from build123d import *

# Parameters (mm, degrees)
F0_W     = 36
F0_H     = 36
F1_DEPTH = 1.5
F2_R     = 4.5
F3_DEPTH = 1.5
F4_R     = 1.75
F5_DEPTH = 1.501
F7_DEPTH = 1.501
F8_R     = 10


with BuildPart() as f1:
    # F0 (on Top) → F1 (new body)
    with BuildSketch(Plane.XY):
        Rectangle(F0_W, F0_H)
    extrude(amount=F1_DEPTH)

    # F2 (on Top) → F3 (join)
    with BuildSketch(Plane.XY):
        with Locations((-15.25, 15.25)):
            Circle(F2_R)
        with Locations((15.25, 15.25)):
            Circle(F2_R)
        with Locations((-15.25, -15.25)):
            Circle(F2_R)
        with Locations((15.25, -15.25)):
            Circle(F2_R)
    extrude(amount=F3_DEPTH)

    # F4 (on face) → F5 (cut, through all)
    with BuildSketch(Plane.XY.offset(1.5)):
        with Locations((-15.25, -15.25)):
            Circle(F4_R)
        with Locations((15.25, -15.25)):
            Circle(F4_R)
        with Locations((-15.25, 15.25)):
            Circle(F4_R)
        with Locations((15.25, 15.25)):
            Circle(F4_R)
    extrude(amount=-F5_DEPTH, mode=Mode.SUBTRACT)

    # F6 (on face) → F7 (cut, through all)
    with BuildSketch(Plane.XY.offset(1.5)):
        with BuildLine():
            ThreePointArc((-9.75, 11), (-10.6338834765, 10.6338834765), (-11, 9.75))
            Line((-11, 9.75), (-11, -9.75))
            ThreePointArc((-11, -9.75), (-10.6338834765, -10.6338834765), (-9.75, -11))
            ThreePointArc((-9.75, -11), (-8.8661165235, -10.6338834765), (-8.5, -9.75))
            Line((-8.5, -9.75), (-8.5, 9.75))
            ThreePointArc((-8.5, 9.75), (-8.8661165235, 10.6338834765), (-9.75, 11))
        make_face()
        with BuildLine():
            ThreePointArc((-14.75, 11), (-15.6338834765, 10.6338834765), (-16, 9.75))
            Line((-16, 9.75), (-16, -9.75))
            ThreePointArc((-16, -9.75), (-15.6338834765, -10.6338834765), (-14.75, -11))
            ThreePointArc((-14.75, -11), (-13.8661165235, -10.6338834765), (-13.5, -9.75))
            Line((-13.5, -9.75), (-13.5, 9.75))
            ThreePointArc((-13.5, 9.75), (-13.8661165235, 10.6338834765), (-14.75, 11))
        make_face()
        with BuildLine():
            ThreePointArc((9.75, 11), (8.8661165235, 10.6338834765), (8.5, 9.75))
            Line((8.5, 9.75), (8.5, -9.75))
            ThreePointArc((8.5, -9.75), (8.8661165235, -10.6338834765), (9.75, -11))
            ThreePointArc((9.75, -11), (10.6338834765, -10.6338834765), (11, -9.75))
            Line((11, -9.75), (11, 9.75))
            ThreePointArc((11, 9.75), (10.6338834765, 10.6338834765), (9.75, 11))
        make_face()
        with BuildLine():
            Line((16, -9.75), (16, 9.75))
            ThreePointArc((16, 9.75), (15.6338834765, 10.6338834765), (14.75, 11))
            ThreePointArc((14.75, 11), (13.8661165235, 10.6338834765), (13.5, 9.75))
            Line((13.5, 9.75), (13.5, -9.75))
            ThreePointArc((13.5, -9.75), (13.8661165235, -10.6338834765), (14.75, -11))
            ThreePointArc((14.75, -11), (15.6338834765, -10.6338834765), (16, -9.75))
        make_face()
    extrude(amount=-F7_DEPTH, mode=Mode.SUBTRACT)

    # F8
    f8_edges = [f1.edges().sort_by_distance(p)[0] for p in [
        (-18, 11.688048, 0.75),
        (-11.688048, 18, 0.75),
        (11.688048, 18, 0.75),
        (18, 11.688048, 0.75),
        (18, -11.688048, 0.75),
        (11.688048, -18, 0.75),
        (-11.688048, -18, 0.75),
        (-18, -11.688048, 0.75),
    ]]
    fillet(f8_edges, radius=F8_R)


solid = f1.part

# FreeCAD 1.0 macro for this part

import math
import FreeCAD as App
import Part
import Sketcher

V = App.Vector


def edges_at(feature, points):
    """Names of the edges that pass closest to the given points."""
    edges = feature.Shape.Edges
    near = lambda p: min(range(len(edges)), key=lambda i: edges[i].distToShape(Part.Vertex(*p))[0])
    return sorted({f"Edge{near(p) + 1}" for p in points})

doc = App.newDocument("Part")
body = doc.addObject("PartDesign::Body", "Body")

# Sketch on XY plane
sketch1 = body.newObject("Sketcher::SketchObject", "Sketch")
sketch1.AttachmentSupport = (doc.getObject("XY_Plane"), [""])
sketch1.MapMode = "FlatFace"
sketch1.addGeometry([
    Part.LineSegment(V(-18, 18, 0), V(-18, -18, 0)),
    Part.LineSegment(V(-18, -18, 0), V(18, -18, 0)),
    Part.LineSegment(V(18, -18, 0), V(18, 18, 0)),
    Part.LineSegment(V(18, 18, 0), V(-18, 18, 0)),
], False)
sketch1.addConstraint([
    Sketcher.Constraint("Coincident", 0, 2, 1, 1),
    Sketcher.Constraint("Coincident", 1, 2, 2, 1),
    Sketcher.Constraint("Coincident", 2, 2, 3, 1),
    Sketcher.Constraint("Coincident", 3, 2, 0, 1),
    Sketcher.Constraint("Vertical", 0),
    Sketcher.Constraint("Horizontal", 1),
    Sketcher.Constraint("Vertical", 2),
    Sketcher.Constraint("Horizontal", 3),
    Sketcher.Constraint("Symmetric", 0, 2, 2, 2, -1, 1),
    Sketcher.Constraint("Equal", 3, 0),
    Sketcher.Constraint("DistanceX", 1, 1, 1, 2, 36.0),
])
pad1 = body.newObject("PartDesign::Pad", "Pad")
pad1.Profile = sketch1
pad1.Length = 1.5

# Sketch on XY plane
sketch2 = body.newObject("Sketcher::SketchObject", "Sketch001")
sketch2.AttachmentSupport = (doc.getObject("XY_Plane"), [""])
sketch2.MapMode = "FlatFace"
sketch2.addGeometry([
    Part.Circle(V(-15.2, 15.2, 0), V(0, 0, 1), 4.5),
    Part.Circle(V(15.2, 15.2, 0), V(0, 0, 1), 4.5),
    Part.Circle(V(-15.2, -15.2, 0), V(0, 0, 1), 4.5),
    Part.Circle(V(15.2, -15.2, 0), V(0, 0, 1), 4.5),
], False)
sketch2.addConstraint([
    Sketcher.Constraint("Equal", 0, 1),
    Sketcher.Constraint("Equal", 1, 2),
    Sketcher.Constraint("Equal", 2, 3),
    Sketcher.Constraint("Symmetric", 1, 3, 2, 3, -1, 1),
    Sketcher.Constraint("Symmetric", 0, 3, 3, 3, -1, 1),
    Sketcher.Constraint("Symmetric", 0, 3, 1, 3, -2),
    Sketcher.Constraint("Diameter", 0, 9.0),
    Sketcher.Constraint("DistanceX", 0, 3, 1, 3, 30.5),
    Sketcher.Constraint("DistanceY", 2, 3, 0, 3, 30.5),
])
pad2 = body.newObject("PartDesign::Pad", "Pad001")
pad2.Profile = sketch2
pad2.Length = 1.5

# Sketch on XY plane
sketch3 = body.newObject("Sketcher::SketchObject", "Sketch002")
sketch3.AttachmentSupport = (doc.getObject("XY_Plane"), [""])
sketch3.MapMode = "FlatFace"
sketch3.AttachmentOffset = App.Placement(V(0, 0, 1.5), App.Rotation())
sketch3.addGeometry([
    Part.Circle(V(-15.2, -15.2, 0), V(0, 0, 1), 1.8),
    Part.Circle(V(15.2, -15.2, 0), V(0, 0, 1), 1.8),
    Part.Circle(V(-15.2, 15.2, 0), V(0, 0, 1), 1.8),
    Part.Circle(V(15.2, 15.2, 0), V(0, 0, 1), 1.8),
], False)
sketch3.addConstraint([
    Sketcher.Constraint("Equal", 0, 1),
    Sketcher.Constraint("Equal", 1, 2),
    Sketcher.Constraint("Equal", 2, 3),
    Sketcher.Constraint("Symmetric", 1, 3, 2, 3, -1, 1),
    Sketcher.Constraint("Symmetric", 0, 3, 3, 3, -1, 1),
    Sketcher.Constraint("Symmetric", 0, 3, 1, 3, -2),
    Sketcher.Constraint("Diameter", 0, 3.5),
    Sketcher.Constraint("DistanceX", 0, 3, 1, 3, 30.5),
    Sketcher.Constraint("DistanceY", 0, 3, 2, 3, 30.5),
])
pocket1 = body.newObject("PartDesign::Pocket", "Pocket")
pocket1.Profile = sketch3
pocket1.Type = "ThroughAll"

# Sketch on XY plane
sketch4 = body.newObject("Sketcher::SketchObject", "Sketch003")
sketch4.AttachmentSupport = (doc.getObject("XY_Plane"), [""])
sketch4.MapMode = "FlatFace"
sketch4.AttachmentOffset = App.Placement(V(0, 0, 1.5), App.Rotation())
sketch4.addGeometry([
    Part.ArcOfCircle(Part.Circle(V(-9.8, 9.8, 0), V(0, 0, 1), 1.2), math.radians(90), math.radians(180)),  # 0
    Part.LineSegment(V(-11, 9.8, 0), V(-11, -9.8, 0)),  # 1
    Part.ArcOfCircle(Part.Circle(V(-9.8, -9.8, 0), V(0, 0, 1), 1.2), math.radians(180), math.radians(270)),  # 2
    Part.ArcOfCircle(Part.Circle(V(-9.8, -9.8, 0), V(0, 0, 1), 1.2), math.radians(-90), math.radians(0)),  # 3
    Part.LineSegment(V(-8.5, -9.8, 0), V(-8.5, 9.8, 0)),  # 4
    Part.ArcOfCircle(Part.Circle(V(-9.8, 9.8, 0), V(0, 0, 1), 1.2), math.radians(0), math.radians(90)),  # 5
    Part.ArcOfCircle(Part.Circle(V(-14.8, 9.8, 0), V(0, 0, 1), 1.2), math.radians(90), math.radians(180)),  # 6
    Part.LineSegment(V(-16, 9.8, 0), V(-16, -9.8, 0)),  # 7
    Part.ArcOfCircle(Part.Circle(V(-14.8, -9.8, 0), V(0, 0, 1), 1.2), math.radians(180), math.radians(270)),  # 8
    Part.ArcOfCircle(Part.Circle(V(-14.8, -9.8, 0), V(0, 0, 1), 1.2), math.radians(-90), math.radians(0)),  # 9
    Part.LineSegment(V(-13.5, -9.8, 0), V(-13.5, 9.8, 0)),  # 10
    Part.ArcOfCircle(Part.Circle(V(-14.8, 9.8, 0), V(0, 0, 1), 1.2), math.radians(0), math.radians(90)),  # 11
    Part.ArcOfCircle(Part.Circle(V(9.8, 9.8, 0), V(0, 0, 1), 1.2), math.radians(90), math.radians(180)),  # 12
    Part.LineSegment(V(8.5, 9.8, 0), V(8.5, -9.8, 0)),  # 13
    Part.ArcOfCircle(Part.Circle(V(9.8, -9.8, 0), V(0, 0, 1), 1.2), math.radians(180), math.radians(270)),  # 14
    Part.ArcOfCircle(Part.Circle(V(9.8, -9.8, 0), V(0, 0, 1), 1.2), math.radians(-90), math.radians(0)),  # 15
    Part.LineSegment(V(11, -9.8, 0), V(11, 9.8, 0)),  # 16
    Part.ArcOfCircle(Part.Circle(V(9.8, 9.8, 0), V(0, 0, 1), 1.2), math.radians(0), math.radians(90)),  # 17
    Part.LineSegment(V(16, -9.8, 0), V(16, 9.8, 0)),  # 18
    Part.ArcOfCircle(Part.Circle(V(14.8, 9.8, 0), V(0, 0, 1), 1.2), math.radians(0), math.radians(90)),  # 19
    Part.ArcOfCircle(Part.Circle(V(14.8, 9.8, 0), V(0, 0, 1), 1.2), math.radians(90), math.radians(180)),  # 20
    Part.LineSegment(V(13.5, 9.8, 0), V(13.5, -9.8, 0)),  # 21
    Part.ArcOfCircle(Part.Circle(V(14.8, -9.8, 0), V(0, 0, 1), 1.2), math.radians(180), math.radians(270)),  # 22
    Part.ArcOfCircle(Part.Circle(V(14.8, -9.8, 0), V(0, 0, 1), 1.2), math.radians(-90), math.radians(0)),  # 23
], False)
sketch4.addConstraint([
    Sketcher.Constraint("Tangent", 0, 2, 1, 1),
    Sketcher.Constraint("Tangent", 1, 2, 2, 1),
    Sketcher.Constraint("Tangent", 2, 2, 3, 1),
    Sketcher.Constraint("Tangent", 3, 2, 4, 1),
    Sketcher.Constraint("Tangent", 4, 2, 5, 1),
    Sketcher.Constraint("Tangent", 5, 2, 0, 1),
    Sketcher.Constraint("Tangent", 6, 2, 7, 1),
    Sketcher.Constraint("Tangent", 7, 2, 8, 1),
    Sketcher.Constraint("Tangent", 8, 2, 9, 1),
    Sketcher.Constraint("Tangent", 9, 2, 10, 1),
    Sketcher.Constraint("Tangent", 10, 2, 11, 1),
    Sketcher.Constraint("Tangent", 11, 2, 6, 1),
    Sketcher.Constraint("Tangent", 12, 2, 13, 1),
    Sketcher.Constraint("Tangent", 13, 2, 14, 1),
    Sketcher.Constraint("Tangent", 14, 2, 15, 1),
    Sketcher.Constraint("Tangent", 15, 2, 16, 1),
    Sketcher.Constraint("Tangent", 16, 2, 17, 1),
    Sketcher.Constraint("Tangent", 17, 2, 12, 1),
    Sketcher.Constraint("Tangent", 18, 2, 19, 1),
    Sketcher.Constraint("Tangent", 19, 2, 20, 1),
    Sketcher.Constraint("Tangent", 20, 2, 21, 1),
    Sketcher.Constraint("Tangent", 21, 2, 22, 1),
    Sketcher.Constraint("Tangent", 22, 2, 23, 1),
    Sketcher.Constraint("Tangent", 23, 2, 18, 1),
    Sketcher.Constraint("Vertical", 1),
    Sketcher.Constraint("Vertical", 4),
    Sketcher.Constraint("Vertical", 7),
    Sketcher.Constraint("Vertical", 10),
    Sketcher.Constraint("Vertical", 13),
    Sketcher.Constraint("Vertical", 16),
    Sketcher.Constraint("Vertical", 18),
    Sketcher.Constraint("Vertical", 21),
    Sketcher.Constraint("Equal", 0, 2),
    Sketcher.Constraint("Equal", 2, 3),
    Sketcher.Constraint("Equal", 5, 6),
    Sketcher.Constraint("Equal", 6, 8),
    Sketcher.Constraint("Equal", 8, 9),
    Sketcher.Constraint("Equal", 11, 12),
    Sketcher.Constraint("Equal", 12, 14),
    Sketcher.Constraint("Equal", 14, 15),
    Sketcher.Constraint("Equal", 17, 19),
    Sketcher.Constraint("Equal", 19, 20),
    Sketcher.Constraint("Equal", 20, 22),
    Sketcher.Constraint("Symmetric", 2, 3, 12, 3, -1, 1),
    Sketcher.Constraint("Symmetric", 8, 3, 19, 3, -1, 1),
    Sketcher.Constraint("Symmetric", 5, 2, 14, 2, -1, 1),
    Sketcher.Constraint("Symmetric", 11, 2, 22, 2, -1, 1),
    Sketcher.Constraint("Symmetric", 2, 2, 14, 2, -2),
    Sketcher.Constraint("Symmetric", 11, 2, 19, 2, -2),
    Sketcher.Constraint("Horizontal", 5, 3, 6, 3),
    Sketcher.Constraint("Vertical", 5, 3, 2, 2),
    Sketcher.Constraint("Vertical", 11, 3, 8, 2),
    Sketcher.Constraint("Vertical", 8, 2, 11, 2),
    Sketcher.Constraint("Vertical", 14, 2, 17, 2),
    Sketcher.Constraint("Radius", 0, 1.25),
    Sketcher.Constraint("DistanceY", 1, 2, 1, 1, 19.5),
    Sketcher.Constraint("DistanceX", 0, 2, -1, 1, 11.0),
    Sketcher.Constraint("DistanceX", 6, 2, -1, 1, 16.0),
])
pocket2 = body.newObject("PartDesign::Pocket", "Pocket001")
pocket2.Profile = sketch4
pocket2.Type = "ThroughAll"
doc.recompute()

fillet = body.newObject("PartDesign::Fillet", "Fillet")
fillet.Base = (pocket2, edges_at(pocket2, [
    (-18, 11.688, 0.75),
    (-11.688, 18, 0.75),
    (11.688, 18, 0.75),
    (18, 11.688, 0.75),
    (18, -11.688, 0.75),
    (11.688, -18, 0.75),
    (-11.688, -18, 0.75),
    (-18, -11.688, 0.75),
]))
fillet.Radius = 10

doc.recompute()
